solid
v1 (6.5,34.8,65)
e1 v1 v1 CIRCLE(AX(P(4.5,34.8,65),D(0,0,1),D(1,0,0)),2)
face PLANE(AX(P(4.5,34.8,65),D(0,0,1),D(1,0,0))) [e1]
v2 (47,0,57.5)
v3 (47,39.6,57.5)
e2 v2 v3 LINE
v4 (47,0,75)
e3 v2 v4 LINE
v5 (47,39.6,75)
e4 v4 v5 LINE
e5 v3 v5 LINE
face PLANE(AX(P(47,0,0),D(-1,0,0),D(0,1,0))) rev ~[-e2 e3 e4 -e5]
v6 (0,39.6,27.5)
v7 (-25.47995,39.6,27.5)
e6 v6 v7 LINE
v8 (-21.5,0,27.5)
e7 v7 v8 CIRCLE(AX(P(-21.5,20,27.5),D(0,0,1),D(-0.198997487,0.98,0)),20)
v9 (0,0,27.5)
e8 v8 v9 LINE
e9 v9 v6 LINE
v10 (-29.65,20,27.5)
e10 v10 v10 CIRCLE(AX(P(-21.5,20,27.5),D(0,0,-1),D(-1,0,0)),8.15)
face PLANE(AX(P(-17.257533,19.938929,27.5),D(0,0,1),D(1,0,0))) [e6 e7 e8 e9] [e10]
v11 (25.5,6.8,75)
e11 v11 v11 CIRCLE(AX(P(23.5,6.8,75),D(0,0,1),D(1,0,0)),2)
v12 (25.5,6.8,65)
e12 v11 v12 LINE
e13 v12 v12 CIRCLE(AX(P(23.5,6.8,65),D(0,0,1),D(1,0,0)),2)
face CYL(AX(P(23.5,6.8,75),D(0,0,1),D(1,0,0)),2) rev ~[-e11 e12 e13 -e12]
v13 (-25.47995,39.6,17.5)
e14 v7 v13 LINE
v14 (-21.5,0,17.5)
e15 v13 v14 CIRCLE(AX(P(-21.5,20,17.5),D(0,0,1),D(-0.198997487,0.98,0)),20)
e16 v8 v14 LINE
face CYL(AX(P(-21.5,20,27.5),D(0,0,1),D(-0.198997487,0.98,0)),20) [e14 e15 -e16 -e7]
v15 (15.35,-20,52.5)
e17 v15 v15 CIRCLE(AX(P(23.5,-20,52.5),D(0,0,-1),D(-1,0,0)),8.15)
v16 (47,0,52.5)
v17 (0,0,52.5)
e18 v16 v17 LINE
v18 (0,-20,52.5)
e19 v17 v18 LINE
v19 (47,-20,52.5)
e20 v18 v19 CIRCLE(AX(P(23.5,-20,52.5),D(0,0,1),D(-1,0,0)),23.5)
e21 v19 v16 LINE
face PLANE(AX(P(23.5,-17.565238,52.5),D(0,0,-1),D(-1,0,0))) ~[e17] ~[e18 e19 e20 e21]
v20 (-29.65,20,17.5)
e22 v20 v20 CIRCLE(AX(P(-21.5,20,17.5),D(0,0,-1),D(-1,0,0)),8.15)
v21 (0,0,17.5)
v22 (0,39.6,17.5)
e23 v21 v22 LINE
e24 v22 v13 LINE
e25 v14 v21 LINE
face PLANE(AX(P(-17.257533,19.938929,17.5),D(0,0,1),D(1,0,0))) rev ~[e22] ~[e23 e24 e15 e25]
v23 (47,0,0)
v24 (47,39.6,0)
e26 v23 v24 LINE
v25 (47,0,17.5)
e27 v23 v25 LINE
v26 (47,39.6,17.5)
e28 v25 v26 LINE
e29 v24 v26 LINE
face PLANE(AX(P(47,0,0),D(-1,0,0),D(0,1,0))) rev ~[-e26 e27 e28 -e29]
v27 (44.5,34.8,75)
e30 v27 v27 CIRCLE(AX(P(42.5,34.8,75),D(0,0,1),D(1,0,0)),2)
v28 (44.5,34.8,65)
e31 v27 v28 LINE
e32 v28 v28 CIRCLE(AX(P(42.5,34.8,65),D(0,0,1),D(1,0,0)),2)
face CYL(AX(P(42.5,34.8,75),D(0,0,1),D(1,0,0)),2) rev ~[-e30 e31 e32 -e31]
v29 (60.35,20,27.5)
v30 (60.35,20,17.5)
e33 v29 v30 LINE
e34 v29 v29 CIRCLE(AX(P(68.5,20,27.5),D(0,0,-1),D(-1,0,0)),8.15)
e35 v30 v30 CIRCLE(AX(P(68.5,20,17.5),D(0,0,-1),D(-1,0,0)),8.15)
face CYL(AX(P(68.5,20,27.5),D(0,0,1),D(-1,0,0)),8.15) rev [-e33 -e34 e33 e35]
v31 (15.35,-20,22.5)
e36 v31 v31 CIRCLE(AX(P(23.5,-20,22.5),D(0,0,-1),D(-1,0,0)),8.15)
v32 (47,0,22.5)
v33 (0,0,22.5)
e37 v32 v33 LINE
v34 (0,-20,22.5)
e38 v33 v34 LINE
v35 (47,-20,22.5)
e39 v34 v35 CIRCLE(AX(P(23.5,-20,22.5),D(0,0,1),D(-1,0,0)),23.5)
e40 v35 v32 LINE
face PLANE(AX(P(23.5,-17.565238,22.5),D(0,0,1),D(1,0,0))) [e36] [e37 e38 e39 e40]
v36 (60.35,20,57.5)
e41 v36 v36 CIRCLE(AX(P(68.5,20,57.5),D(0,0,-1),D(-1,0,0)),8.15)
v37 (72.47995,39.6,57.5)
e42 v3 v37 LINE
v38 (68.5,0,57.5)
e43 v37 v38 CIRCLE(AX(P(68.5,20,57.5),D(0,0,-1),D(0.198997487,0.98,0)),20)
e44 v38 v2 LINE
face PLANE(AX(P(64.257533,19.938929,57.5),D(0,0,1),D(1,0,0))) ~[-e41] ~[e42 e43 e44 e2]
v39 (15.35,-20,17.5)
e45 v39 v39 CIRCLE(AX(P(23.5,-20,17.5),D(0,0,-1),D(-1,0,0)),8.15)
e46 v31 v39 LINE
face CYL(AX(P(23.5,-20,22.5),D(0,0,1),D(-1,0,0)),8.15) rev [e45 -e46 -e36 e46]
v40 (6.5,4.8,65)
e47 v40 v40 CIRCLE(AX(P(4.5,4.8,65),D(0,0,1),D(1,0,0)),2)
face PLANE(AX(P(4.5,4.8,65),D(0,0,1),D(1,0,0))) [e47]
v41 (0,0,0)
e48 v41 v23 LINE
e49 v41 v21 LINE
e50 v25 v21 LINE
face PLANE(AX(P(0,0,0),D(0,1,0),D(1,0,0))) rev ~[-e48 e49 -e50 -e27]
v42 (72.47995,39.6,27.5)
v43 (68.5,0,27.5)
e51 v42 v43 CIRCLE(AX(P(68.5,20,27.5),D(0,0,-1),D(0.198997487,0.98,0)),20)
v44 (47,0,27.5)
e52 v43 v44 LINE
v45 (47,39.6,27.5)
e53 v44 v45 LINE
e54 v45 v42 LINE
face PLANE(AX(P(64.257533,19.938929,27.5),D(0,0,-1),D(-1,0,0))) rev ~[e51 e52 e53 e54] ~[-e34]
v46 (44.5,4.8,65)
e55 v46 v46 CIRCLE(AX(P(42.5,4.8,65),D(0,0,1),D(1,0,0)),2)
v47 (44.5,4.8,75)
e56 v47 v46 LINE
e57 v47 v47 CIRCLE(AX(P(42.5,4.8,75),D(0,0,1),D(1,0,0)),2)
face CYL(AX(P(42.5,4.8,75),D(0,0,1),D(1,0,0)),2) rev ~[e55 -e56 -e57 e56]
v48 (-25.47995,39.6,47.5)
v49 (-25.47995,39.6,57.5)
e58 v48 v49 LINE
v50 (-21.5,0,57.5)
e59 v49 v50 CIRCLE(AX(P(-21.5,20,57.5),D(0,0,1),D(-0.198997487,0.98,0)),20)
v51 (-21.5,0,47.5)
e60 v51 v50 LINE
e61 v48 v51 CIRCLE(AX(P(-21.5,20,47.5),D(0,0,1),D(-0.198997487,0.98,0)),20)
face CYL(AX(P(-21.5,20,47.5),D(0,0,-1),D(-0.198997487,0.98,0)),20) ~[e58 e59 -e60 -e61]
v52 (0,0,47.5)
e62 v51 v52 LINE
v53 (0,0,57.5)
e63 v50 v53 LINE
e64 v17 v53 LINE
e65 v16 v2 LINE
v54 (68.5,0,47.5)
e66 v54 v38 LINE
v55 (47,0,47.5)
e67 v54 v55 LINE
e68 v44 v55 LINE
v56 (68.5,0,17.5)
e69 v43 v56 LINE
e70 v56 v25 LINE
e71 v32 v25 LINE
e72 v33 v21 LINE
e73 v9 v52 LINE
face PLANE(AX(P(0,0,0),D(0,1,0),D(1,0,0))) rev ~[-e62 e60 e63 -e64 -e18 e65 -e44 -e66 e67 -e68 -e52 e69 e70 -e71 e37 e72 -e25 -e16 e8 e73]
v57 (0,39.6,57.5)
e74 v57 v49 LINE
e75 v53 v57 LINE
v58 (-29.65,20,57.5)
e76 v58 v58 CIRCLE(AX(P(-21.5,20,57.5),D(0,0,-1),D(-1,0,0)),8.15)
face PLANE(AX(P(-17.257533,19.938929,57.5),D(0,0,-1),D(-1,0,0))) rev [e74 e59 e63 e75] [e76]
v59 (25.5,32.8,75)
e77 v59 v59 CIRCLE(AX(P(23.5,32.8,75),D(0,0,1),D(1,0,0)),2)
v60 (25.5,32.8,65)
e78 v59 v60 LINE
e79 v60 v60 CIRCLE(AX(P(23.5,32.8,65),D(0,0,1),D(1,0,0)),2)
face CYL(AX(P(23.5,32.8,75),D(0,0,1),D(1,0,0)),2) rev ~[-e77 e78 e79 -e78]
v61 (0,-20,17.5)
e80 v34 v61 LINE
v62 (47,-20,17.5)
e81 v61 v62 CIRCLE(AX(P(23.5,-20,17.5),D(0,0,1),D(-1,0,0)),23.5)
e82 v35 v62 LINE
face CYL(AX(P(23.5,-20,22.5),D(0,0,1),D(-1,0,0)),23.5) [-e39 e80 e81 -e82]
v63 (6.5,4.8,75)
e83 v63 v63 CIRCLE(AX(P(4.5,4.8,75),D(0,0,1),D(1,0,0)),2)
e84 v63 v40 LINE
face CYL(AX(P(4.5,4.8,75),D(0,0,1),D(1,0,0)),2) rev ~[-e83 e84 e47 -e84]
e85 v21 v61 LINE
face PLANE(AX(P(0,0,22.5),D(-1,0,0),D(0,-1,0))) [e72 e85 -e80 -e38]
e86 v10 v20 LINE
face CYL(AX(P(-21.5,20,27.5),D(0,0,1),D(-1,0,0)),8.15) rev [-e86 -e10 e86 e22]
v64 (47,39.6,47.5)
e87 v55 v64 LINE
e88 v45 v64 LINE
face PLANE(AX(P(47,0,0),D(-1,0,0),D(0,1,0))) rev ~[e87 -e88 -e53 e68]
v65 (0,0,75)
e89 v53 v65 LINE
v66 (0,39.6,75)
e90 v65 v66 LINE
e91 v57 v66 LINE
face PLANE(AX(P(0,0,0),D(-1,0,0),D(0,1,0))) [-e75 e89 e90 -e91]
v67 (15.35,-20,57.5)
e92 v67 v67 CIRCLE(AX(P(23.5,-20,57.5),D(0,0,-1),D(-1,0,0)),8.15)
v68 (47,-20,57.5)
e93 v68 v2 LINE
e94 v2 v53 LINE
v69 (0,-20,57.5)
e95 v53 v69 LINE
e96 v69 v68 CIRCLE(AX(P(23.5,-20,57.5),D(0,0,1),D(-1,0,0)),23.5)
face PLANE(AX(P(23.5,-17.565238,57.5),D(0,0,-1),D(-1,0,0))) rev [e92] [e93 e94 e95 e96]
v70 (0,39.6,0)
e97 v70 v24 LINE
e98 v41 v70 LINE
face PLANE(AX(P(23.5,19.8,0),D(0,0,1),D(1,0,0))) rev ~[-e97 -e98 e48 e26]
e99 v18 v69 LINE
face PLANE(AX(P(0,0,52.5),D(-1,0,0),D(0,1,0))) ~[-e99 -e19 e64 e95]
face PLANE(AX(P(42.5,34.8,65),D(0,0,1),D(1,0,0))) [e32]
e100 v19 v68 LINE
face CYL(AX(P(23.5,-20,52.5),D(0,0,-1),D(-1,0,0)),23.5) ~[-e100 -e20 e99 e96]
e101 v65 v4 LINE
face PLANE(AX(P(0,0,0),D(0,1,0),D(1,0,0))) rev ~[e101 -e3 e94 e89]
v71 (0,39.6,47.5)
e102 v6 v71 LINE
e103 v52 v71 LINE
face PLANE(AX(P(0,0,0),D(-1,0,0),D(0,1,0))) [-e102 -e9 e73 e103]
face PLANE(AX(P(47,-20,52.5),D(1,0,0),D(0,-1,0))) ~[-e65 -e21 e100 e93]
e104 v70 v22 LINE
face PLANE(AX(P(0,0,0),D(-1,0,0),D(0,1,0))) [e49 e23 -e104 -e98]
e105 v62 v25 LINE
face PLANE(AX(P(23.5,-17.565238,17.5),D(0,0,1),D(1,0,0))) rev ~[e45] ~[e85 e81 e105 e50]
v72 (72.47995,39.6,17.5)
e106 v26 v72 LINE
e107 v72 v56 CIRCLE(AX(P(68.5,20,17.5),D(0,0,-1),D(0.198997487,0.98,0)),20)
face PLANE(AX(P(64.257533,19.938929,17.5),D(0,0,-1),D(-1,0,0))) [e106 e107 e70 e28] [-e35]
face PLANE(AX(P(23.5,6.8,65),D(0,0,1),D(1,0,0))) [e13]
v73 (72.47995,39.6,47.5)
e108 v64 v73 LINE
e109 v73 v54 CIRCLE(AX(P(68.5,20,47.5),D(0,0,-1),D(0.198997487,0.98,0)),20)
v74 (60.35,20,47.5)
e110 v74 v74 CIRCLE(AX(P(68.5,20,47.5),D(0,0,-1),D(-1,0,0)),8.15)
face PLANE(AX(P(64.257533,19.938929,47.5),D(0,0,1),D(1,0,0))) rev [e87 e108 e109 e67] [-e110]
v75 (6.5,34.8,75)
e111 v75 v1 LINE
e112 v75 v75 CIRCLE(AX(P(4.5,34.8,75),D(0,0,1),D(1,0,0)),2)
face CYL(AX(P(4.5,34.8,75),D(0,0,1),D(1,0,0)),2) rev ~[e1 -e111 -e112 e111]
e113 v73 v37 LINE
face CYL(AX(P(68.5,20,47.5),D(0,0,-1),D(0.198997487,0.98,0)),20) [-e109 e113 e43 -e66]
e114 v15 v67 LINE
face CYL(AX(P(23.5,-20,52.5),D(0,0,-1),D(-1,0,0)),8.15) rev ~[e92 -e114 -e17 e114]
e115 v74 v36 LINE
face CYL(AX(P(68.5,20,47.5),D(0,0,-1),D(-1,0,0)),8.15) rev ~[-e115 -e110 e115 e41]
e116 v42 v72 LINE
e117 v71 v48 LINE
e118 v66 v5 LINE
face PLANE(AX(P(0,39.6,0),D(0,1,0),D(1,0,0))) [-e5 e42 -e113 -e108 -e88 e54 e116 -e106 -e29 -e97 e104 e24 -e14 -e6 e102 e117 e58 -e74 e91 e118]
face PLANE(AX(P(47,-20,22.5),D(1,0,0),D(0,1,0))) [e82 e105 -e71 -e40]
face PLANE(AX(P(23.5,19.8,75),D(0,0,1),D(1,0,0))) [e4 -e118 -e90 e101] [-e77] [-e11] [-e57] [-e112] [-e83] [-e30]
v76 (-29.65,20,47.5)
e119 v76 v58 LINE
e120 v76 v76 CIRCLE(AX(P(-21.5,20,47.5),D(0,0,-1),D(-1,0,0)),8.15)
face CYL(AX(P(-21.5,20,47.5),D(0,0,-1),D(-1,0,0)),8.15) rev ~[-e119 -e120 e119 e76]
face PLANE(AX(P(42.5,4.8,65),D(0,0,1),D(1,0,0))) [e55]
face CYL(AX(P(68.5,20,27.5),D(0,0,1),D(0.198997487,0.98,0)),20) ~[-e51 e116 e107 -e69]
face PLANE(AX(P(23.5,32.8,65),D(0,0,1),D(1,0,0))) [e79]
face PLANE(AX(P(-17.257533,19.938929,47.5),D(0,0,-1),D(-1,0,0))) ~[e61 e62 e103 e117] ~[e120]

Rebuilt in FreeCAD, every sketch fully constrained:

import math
import FreeCAD as App
import Part
import Sketcher
from FreeCAD import Vector


def add_polygon(sketch, points):
    """Adds a closed chain of lines whose ends are joined by coincident constraints."""
    first, n = sketch.GeometryCount, len(points)
    for a, b in zip(points, points[1:] + points[:1]):
        sketch.addGeometry(Part.LineSegment(App.Vector(*a, 0), App.Vector(*b, 0)), False)
    for i in range(n):
        sketch.addConstraint(Sketcher.Constraint("Coincident", first + i, 2, first + (i + 1) % n, 1))

doc = App.newDocument("Part")
body = doc.addObject("PartDesign::Body", "Body")

# Sketch on XY plane
sketch1 = body.newObject("Sketcher::SketchObject", "Sketch")
sketch1.AttachmentSupport = (doc.getObject("XY_Plane"), [""])
sketch1.MapMode = "FlatFace"
add_polygon(sketch1, [(0, 39.6), (0, 0), (47, 0), (47, 39.6)])  # lines 0-3
sketch1.addConstraint([
    Sketcher.Constraint("Vertical", 0),
    Sketcher.Constraint("Horizontal", 1),
    Sketcher.Constraint("Vertical", 2),
    Sketcher.Constraint("Horizontal", 3),
    Sketcher.Constraint("Coincident", 0, 2, -1, 1),
    Sketcher.Constraint("DistanceX", 1, 1, 1, 2, 47.0),
    Sketcher.Constraint("DistanceY", 0, 2, 0, 1, 39.6),
])
pad1 = body.newObject("PartDesign::Pad", "Pad")
pad1.Profile = sketch1
pad1.Length = 75

# Sketch on XY plane
sketch2 = body.newObject("Sketcher::SketchObject", "Sketch001")
sketch2.AttachmentSupport = (doc.getObject("XY_Plane"), [""])
sketch2.MapMode = "FlatFace"
sketch2.AttachmentOffset = App.Placement(Vector(0, 0, 27.5), App.Rotation())
sketch2.addGeometry([
    Part.LineSegment(Vector(47, 39.6, 0), Vector(72.47995, 39.6, 0)),  # 0
    Part.ArcOfCircle(Part.Circle(Vector(68.5, 20, 0), Vector(0, 0, 1), 20), math.radians(-90), math.radians(78.521659)),  # 1
    Part.LineSegment(Vector(68.5, 0, 0), Vector(47, 0, 0)),  # 2
    Part.LineSegment(Vector(47, 0, 0), Vector(47, 39.6, 0)),  # 3
    Part.Circle(Vector(68.5, 20, 0), Vector(0, 0, 1), 8.15),  # 4
    Part.LineSegment(Vector(0, 0, 0), Vector(-21.5, 0, 0)),  # 5
    Part.ArcOfCircle(Part.Circle(Vector(-21.5, 20, 0), Vector(0, 0, 1), 20), math.radians(101.478341), math.radians(270)),  # 6
    Part.LineSegment(Vector(-25.47995, 39.6, 0), Vector(0, 39.6, 0)),  # 7
    Part.LineSegment(Vector(0, 39.6, 0), Vector(0, 0, 0)),  # 8
    Part.Circle(Vector(-21.5, 20, 0), Vector(0, 0, 1), 8.15),  # 9
], False)
sketch2.addConstraint([
    Sketcher.Constraint("Coincident", 0, 2, 1, 2),
    Sketcher.Constraint("Tangent", 1, 1, 2, 1),
    Sketcher.Constraint("Coincident", 2, 2, 3, 1),
    Sketcher.Constraint("Coincident", 3, 2, 0, 1),
    Sketcher.Constraint("Tangent", 5, 2, 6, 2),
    Sketcher.Constraint("Coincident", 6, 1, 7, 1),
    Sketcher.Constraint("Coincident", 7, 2, 8, 1),
    Sketcher.Constraint("Coincident", 8, 2, 5, 1),
    Sketcher.Constraint("Horizontal", 0),
    Sketcher.Constraint("Horizontal", 2),
    Sketcher.Constraint("Vertical", 3),
    Sketcher.Constraint("Horizontal", 5),
    Sketcher.Constraint("Horizontal", 7),
    Sketcher.Constraint("Vertical", 8),
    Sketcher.Constraint("Coincident", 8, 2, -1, 1),
    Sketcher.Constraint("Coincident", 4, 3, 1, 3),
    Sketcher.Constraint("Coincident", 9, 3, 6, 3),
    Sketcher.Constraint("Equal", 1, 6),
    Sketcher.Constraint("Equal", 4, 9),
    Sketcher.Constraint("PointOnObject", 1, 1, -1),
    Sketcher.Constraint("Horizontal", 3, 2, 6, 1),
    Sketcher.Constraint("Equal", 2, 5),
    Sketcher.Constraint("Radius", 1, 20.0),
    Sketcher.Constraint("Diameter", 4, 16.3),
    Sketcher.Constraint("DistanceX", 2, 2, 2, 1, 21.5),
    Sketcher.Constraint("DistanceY", 3, 1, 3, 2, 39.6),
    Sketcher.Constraint("DistanceX", -1, 1, 2, 2, 47.0),
])
pad2 = body.newObject("PartDesign::Pad", "Pad001")
pad2.Profile = sketch2
pad2.Length = 10
pad2.Reversed = True
doc.recompute()

datumplane = body.newObject("PartDesign::Plane", "DatumPlane")
datumplane.AttachmentSupport = (doc.getObject("XY_Plane"), [""])
datumplane.MapMode = "FlatFace"
datumplane.AttachmentOffset = App.Placement(Vector(0, 0, 37.5), App.Rotation())
mirrored = body.newObject("PartDesign::Mirrored", "Mirrored")
mirrored.Originals = [pad2]
mirrored.MirrorPlane = (datumplane, [""])
body.Tip = mirrored

# Sketch on XY plane
sketch3 = body.newObject("Sketcher::SketchObject", "Sketch002")
sketch3.AttachmentSupport = (doc.getObject("XY_Plane"), [""])
sketch3.MapMode = "FlatFace"
sketch3.AttachmentOffset = App.Placement(Vector(0, 0, 22.5), App.Rotation())
sketch3.addGeometry([
    Part.LineSegment(Vector(0, 0, 0), Vector(47, 0, 0)),  # 0
    Part.LineSegment(Vector(47, 0, 0), Vector(47, -20, 0)),  # 1
    Part.ArcOfCircle(Part.Circle(Vector(23.5, -20, 0), Vector(0, 0, 1), 23.5), math.radians(180), math.radians(360)),  # 2
    Part.LineSegment(Vector(0, -20, 0), Vector(0, 0, 0)),  # 3
    Part.Circle(Vector(23.5, -20, 0), Vector(0, 0, 1), 8.15),  # 4
], False)
sketch3.addConstraint([
    Sketcher.Constraint("Coincident", 0, 2, 1, 1),
    Sketcher.Constraint("Tangent", 1, 2, 2, 2),
    Sketcher.Constraint("Tangent", 2, 1, 3, 1),
    Sketcher.Constraint("Coincident", 3, 2, 0, 1),
    Sketcher.Constraint("Horizontal", 0),
    Sketcher.Constraint("Vertical", 1),
    Sketcher.Constraint("Vertical", 3),
    Sketcher.Constraint("Coincident", 3, 2, -1, 1),
    Sketcher.Constraint("Coincident", 4, 3, 2, 3),
    Sketcher.Constraint("Diameter", 4, 16.3),
    Sketcher.Constraint("Radius", 2, 23.5),
    Sketcher.Constraint("DistanceY", 1, 2, 1, 1, 20.0),
])
pad3 = body.newObject("PartDesign::Pad", "Pad002")
pad3.Profile = sketch3
pad3.Length = 5
pad3.Reversed = True
doc.recompute()

datumplane2 = body.newObject("PartDesign::Plane", "DatumPlane001")
datumplane2.AttachmentSupport = (doc.getObject("XY_Plane"), [""])
datumplane2.MapMode = "FlatFace"
datumplane2.AttachmentOffset = App.Placement(Vector(0, 0, 37.5), App.Rotation())
mirrored2 = body.newObject("PartDesign::Mirrored", "Mirrored001")
mirrored2.Originals = [pad3]
mirrored2.MirrorPlane = (datumplane2, [""])
body.Tip = mirrored2

# Sketch on XY plane
sketch4 = body.newObject("Sketcher::SketchObject", "Sketch003")
sketch4.AttachmentSupport = (doc.getObject("XY_Plane"), [""])
sketch4.MapMode = "FlatFace"
sketch4.AttachmentOffset = App.Placement(Vector(0, 0, 75), App.Rotation())
sketch4.addGeometry([
    Part.Circle(Vector(4.5, 4.8, 0), Vector(0, 0, 1), 2),  # 0
    Part.Circle(Vector(4.5, 34.8, 0), Vector(0, 0, 1), 2),  # 1
    Part.Circle(Vector(42.5, 34.8, 0), Vector(0, 0, 1), 2),  # 2
    Part.Circle(Vector(42.5, 4.8, 0), Vector(0, 0, 1), 2),  # 3
    Part.Circle(Vector(23.5, 32.8, 0), Vector(0, 0, 1), 2),  # 4
    Part.Circle(Vector(23.5, 6.8, 0), Vector(0, 0, 1), 2),  # 5
], False)
sketch4.addConstraint([
    Sketcher.Constraint("Equal", 0, 1),
    Sketcher.Constraint("Equal", 1, 2),
    Sketcher.Constraint("Equal", 2, 3),
    Sketcher.Constraint("Equal", 3, 4),
    Sketcher.Constraint("Equal", 4, 5),
    Sketcher.Constraint("Horizontal", 1, 3, 2, 3),
    Sketcher.Constraint("Horizontal", 0, 3, 3, 3),
    Sketcher.Constraint("Vertical", 0, 3, 1, 3),
    Sketcher.Constraint("Vertical", 2, 3, 3, 3),
    Sketcher.Constraint("Vertical", 4, 3, 5, 3),
    Sketcher.Constraint("Diameter", 0, 4.0),
    Sketcher.Constraint("DistanceY", 0, 3, 1, 3, 30.0),
    Sketcher.Constraint("DistanceX", 1, 3, 2, 3, 38.0),
    Sketcher.Constraint("DistanceX", 1, 3, 4, 3, 19.0),
    Sketcher.Constraint("DistanceY", 4, 3, 1, 3, 2.0),
    Sketcher.Constraint("DistanceY", 0, 3, 5, 3, 2.0),
    Sketcher.Constraint("DistanceX", -1, 1, 0, 3, 4.5),
    Sketcher.Constraint("DistanceY", -1, 1, 0, 3, 4.8),
])
pocket1 = body.newObject("PartDesign::Pocket", "Pocket")
pocket1.Profile = sketch4
pocket1.Length = 10

doc.recompute()
